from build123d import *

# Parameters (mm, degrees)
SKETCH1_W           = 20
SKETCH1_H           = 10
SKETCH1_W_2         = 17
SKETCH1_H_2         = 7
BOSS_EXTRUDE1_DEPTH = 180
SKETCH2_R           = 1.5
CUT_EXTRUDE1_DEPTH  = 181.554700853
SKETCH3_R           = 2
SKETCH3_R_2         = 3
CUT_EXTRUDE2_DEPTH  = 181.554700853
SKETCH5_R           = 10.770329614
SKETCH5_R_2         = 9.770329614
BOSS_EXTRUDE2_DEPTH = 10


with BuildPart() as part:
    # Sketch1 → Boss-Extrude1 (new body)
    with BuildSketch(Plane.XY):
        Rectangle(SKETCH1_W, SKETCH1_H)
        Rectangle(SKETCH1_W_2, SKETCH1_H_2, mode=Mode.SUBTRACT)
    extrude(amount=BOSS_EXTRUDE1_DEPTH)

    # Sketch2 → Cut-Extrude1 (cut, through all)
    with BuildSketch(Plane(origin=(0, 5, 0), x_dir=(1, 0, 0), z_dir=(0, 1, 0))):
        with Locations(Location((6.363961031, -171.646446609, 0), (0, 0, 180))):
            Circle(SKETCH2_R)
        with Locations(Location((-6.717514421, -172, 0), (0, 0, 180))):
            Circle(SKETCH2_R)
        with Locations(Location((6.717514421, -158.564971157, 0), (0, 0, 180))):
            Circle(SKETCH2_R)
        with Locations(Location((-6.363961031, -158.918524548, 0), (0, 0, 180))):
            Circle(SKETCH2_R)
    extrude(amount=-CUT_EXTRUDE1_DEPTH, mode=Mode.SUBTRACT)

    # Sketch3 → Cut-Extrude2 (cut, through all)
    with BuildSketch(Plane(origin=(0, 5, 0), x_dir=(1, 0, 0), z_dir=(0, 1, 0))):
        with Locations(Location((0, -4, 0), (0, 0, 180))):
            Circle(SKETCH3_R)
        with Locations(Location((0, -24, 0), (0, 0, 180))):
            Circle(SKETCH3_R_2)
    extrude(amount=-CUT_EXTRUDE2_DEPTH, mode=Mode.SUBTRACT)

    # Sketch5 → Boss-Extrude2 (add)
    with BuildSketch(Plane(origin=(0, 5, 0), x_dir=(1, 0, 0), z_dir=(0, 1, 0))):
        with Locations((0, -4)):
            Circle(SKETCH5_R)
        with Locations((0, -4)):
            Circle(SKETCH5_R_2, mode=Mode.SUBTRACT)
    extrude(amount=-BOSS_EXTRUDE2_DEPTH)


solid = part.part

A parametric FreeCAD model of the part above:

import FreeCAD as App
import Part
import Sketcher

doc = App.newDocument("Part")
body = doc.addObject("PartDesign::Body", "Body")

# Sketch on XY plane
sketch1 = body.newObject("Sketcher::SketchObject", "Sketch")
sketch1.AttachmentSupport = (doc.getObject("XY_Plane"), [""])
sketch1.MapMode = "FlatFace"
sketch1.addGeometry([
    Part.LineSegment(App.Vector(-10, 5, 0), App.Vector(-10, -5, 0)),  # 0
    Part.LineSegment(App.Vector(-10, -5, 0), App.Vector(10, -5, 0)),  # 1
    Part.LineSegment(App.Vector(10, -5, 0), App.Vector(10, 5, 0)),  # 2
    Part.LineSegment(App.Vector(10, 5, 0), App.Vector(-10, 5, 0)),  # 3
    Part.LineSegment(App.Vector(8, -4, 0), App.Vector(-8, -4, 0)),  # 4
    Part.LineSegment(App.Vector(-8, -4, 0), App.Vector(-8, 4, 0)),  # 5
    Part.LineSegment(App.Vector(-8, 4, 0), App.Vector(8, 4, 0)),  # 6
    Part.LineSegment(App.Vector(8, 4, 0), App.Vector(8, -4, 0)),  # 7
], False)
sketch1.addConstraint([
    Sketcher.Constraint("Coincident", 0, 2, 1, 1),
    Sketcher.Constraint("Coincident", 1, 2, 2, 1),
    Sketcher.Constraint("Coincident", 2, 2, 3, 1),
    Sketcher.Constraint("Coincident", 3, 2, 0, 1),
    Sketcher.Constraint("Coincident", 4, 2, 5, 1),
    Sketcher.Constraint("Coincident", 5, 2, 6, 1),
    Sketcher.Constraint("Coincident", 6, 2, 7, 1),
    Sketcher.Constraint("Coincident", 7, 2, 4, 1),
    Sketcher.Constraint("Vertical", 0),
    Sketcher.Constraint("Horizontal", 1),
    Sketcher.Constraint("Vertical", 2),
    Sketcher.Constraint("Horizontal", 3),
    Sketcher.Constraint("Horizontal", 4),
    Sketcher.Constraint("Vertical", 5),
    Sketcher.Constraint("Horizontal", 6),
    Sketcher.Constraint("Vertical", 7),
    Sketcher.Constraint("Symmetric", 0, 2, 2, 2, -1, 1),
    Sketcher.Constraint("Symmetric", 4, 2, 6, 2, -1, 1),
    Sketcher.Constraint("DistanceX", 1, 1, 1, 2, 20.0),
    Sketcher.Constraint("DistanceX", 4, 2, 4, 1, 17.0),
    Sketcher.Constraint("DistanceY", 0, 2, 0, 1, 10.0),
    Sketcher.Constraint("DistanceY", 5, 1, 5, 2, 7.0),
])
pad1 = body.newObject("PartDesign::Pad", "Pad")
pad1.Profile = sketch1
pad1.Length = 180

# Sketch on XZ plane
sketch2 = body.newObject("Sketcher::SketchObject", "Sketch001")
sketch2.AttachmentSupport = (doc.getObject("XZ_Plane"), [""])
sketch2.MapMode = "FlatFace"
sketch2.AttachmentOffset = App.Placement(App.Vector(0, 0, -5), App.Rotation())
sketch2.addGeometry([
    Part.Circle(App.Vector(6.4, 171.6, 0), App.Vector(0, 0, 1), 1.5),
    Part.Circle(App.Vector(-6.7, 172, 0), App.Vector(0, 0, 1), 1.5),
    Part.Circle(App.Vector(6.7, 158.6, 0), App.Vector(0, 0, 1), 1.5),
    Part.Circle(App.Vector(-6.4, 158.9, 0), App.Vector(0, 0, 1), 1.5),
], False)
sketch2.addConstraint([
    Sketcher.Constraint("Equal", 0, 1),
    Sketcher.Constraint("Equal", 1, 2),
    Sketcher.Constraint("Equal", 2, 3),
    Sketcher.Constraint("Diameter", 0, 3.0),
    Sketcher.Constraint("DistanceY", -1, 1, 1, 3, 172.0),
    Sketcher.Constraint("DistanceX", -1, 1, 0, 3, 6.363961),
    Sketcher.Constraint("DistanceY", -1, 1, 2, 3, 158.564971),
    Sketcher.Constraint("DistanceX", 3, 3, -1, 1, 6.363961),
    Sketcher.Constraint("DistanceX", 1, 3, 2, 3, 13.435029),
    Sketcher.Constraint("DistanceY", -1, 1, 0, 3, 171.646447),
    Sketcher.Constraint("DistanceX", 1, 3, -1, 1, 6.717514),
    Sketcher.Constraint("DistanceY", -1, 1, 3, 3, 158.918525),
])
pocket1 = body.newObject("PartDesign::Pocket", "Pocket")
pocket1.Profile = sketch2
pocket1.Type = "ThroughAll"
pocket1.Reversed = True

# Sketch on XZ plane
sketch3 = body.newObject("Sketcher::SketchObject", "Sketch002")
sketch3.AttachmentSupport = (doc.getObject("XZ_Plane"), [""])
sketch3.MapMode = "FlatFace"
sketch3.AttachmentOffset = App.Placement(App.Vector(0, 0, -5), App.Rotation())
sketch3.addGeometry([
    Part.Circle(App.Vector(0, 4, 0), App.Vector(0, 0, 1), 2),
    Part.Circle(App.Vector(0, 24, 0), App.Vector(0, 0, 1), 3),
], False)
sketch3.addConstraint([
    Sketcher.Constraint("PointOnObject", 0, 3, -2),
    Sketcher.Constraint("PointOnObject", 1, 3, -2),
    Sketcher.Constraint("Diameter", 0, 4.0),
    Sketcher.Constraint("Diameter", 1, 6.0),
    Sketcher.Constraint("DistanceY", -1, 1, 0, 3, 4.0),
    Sketcher.Constraint("DistanceY", -1, 1, 1, 3, 24.0),
])
pocket2 = body.newObject("PartDesign::Pocket", "Pocket001")
pocket2.Profile = sketch3
pocket2.Type = "ThroughAll"
pocket2.Reversed = True

# Sketch on XZ plane
sketch4 = body.newObject("Sketcher::SketchObject", "Sketch003")
sketch4.AttachmentSupport = (doc.getObject("XZ_Plane"), [""])
sketch4.MapMode = "FlatFace"
sketch4.AttachmentOffset = App.Placement(App.Vector(0, 0, -5), App.Rotation())
sketch4.addGeometry([
    Part.Circle(App.Vector(0, 4, 0), App.Vector(0, 0, 1), 11),
    Part.Circle(App.Vector(0, 4, 0), App.Vector(0, 0, 1), 10),
], False)
sketch4.addConstraint([
    Sketcher.Constraint("Coincident", 1, 3, 0, 3),
    Sketcher.Constraint("PointOnObject", 0, 3, -2),
    Sketcher.Constraint("DistanceY", -1, 1, 0, 3, 4.0),
    Sketcher.Constraint("Diameter", 0, 21.540659),
    Sketcher.Constraint("Diameter", 1, 19.540659),
])
pad2 = body.newObject("PartDesign::Pad", "Pad001")
pad2.Profile = sketch4
pad2.Length = 10

doc.recompute()
